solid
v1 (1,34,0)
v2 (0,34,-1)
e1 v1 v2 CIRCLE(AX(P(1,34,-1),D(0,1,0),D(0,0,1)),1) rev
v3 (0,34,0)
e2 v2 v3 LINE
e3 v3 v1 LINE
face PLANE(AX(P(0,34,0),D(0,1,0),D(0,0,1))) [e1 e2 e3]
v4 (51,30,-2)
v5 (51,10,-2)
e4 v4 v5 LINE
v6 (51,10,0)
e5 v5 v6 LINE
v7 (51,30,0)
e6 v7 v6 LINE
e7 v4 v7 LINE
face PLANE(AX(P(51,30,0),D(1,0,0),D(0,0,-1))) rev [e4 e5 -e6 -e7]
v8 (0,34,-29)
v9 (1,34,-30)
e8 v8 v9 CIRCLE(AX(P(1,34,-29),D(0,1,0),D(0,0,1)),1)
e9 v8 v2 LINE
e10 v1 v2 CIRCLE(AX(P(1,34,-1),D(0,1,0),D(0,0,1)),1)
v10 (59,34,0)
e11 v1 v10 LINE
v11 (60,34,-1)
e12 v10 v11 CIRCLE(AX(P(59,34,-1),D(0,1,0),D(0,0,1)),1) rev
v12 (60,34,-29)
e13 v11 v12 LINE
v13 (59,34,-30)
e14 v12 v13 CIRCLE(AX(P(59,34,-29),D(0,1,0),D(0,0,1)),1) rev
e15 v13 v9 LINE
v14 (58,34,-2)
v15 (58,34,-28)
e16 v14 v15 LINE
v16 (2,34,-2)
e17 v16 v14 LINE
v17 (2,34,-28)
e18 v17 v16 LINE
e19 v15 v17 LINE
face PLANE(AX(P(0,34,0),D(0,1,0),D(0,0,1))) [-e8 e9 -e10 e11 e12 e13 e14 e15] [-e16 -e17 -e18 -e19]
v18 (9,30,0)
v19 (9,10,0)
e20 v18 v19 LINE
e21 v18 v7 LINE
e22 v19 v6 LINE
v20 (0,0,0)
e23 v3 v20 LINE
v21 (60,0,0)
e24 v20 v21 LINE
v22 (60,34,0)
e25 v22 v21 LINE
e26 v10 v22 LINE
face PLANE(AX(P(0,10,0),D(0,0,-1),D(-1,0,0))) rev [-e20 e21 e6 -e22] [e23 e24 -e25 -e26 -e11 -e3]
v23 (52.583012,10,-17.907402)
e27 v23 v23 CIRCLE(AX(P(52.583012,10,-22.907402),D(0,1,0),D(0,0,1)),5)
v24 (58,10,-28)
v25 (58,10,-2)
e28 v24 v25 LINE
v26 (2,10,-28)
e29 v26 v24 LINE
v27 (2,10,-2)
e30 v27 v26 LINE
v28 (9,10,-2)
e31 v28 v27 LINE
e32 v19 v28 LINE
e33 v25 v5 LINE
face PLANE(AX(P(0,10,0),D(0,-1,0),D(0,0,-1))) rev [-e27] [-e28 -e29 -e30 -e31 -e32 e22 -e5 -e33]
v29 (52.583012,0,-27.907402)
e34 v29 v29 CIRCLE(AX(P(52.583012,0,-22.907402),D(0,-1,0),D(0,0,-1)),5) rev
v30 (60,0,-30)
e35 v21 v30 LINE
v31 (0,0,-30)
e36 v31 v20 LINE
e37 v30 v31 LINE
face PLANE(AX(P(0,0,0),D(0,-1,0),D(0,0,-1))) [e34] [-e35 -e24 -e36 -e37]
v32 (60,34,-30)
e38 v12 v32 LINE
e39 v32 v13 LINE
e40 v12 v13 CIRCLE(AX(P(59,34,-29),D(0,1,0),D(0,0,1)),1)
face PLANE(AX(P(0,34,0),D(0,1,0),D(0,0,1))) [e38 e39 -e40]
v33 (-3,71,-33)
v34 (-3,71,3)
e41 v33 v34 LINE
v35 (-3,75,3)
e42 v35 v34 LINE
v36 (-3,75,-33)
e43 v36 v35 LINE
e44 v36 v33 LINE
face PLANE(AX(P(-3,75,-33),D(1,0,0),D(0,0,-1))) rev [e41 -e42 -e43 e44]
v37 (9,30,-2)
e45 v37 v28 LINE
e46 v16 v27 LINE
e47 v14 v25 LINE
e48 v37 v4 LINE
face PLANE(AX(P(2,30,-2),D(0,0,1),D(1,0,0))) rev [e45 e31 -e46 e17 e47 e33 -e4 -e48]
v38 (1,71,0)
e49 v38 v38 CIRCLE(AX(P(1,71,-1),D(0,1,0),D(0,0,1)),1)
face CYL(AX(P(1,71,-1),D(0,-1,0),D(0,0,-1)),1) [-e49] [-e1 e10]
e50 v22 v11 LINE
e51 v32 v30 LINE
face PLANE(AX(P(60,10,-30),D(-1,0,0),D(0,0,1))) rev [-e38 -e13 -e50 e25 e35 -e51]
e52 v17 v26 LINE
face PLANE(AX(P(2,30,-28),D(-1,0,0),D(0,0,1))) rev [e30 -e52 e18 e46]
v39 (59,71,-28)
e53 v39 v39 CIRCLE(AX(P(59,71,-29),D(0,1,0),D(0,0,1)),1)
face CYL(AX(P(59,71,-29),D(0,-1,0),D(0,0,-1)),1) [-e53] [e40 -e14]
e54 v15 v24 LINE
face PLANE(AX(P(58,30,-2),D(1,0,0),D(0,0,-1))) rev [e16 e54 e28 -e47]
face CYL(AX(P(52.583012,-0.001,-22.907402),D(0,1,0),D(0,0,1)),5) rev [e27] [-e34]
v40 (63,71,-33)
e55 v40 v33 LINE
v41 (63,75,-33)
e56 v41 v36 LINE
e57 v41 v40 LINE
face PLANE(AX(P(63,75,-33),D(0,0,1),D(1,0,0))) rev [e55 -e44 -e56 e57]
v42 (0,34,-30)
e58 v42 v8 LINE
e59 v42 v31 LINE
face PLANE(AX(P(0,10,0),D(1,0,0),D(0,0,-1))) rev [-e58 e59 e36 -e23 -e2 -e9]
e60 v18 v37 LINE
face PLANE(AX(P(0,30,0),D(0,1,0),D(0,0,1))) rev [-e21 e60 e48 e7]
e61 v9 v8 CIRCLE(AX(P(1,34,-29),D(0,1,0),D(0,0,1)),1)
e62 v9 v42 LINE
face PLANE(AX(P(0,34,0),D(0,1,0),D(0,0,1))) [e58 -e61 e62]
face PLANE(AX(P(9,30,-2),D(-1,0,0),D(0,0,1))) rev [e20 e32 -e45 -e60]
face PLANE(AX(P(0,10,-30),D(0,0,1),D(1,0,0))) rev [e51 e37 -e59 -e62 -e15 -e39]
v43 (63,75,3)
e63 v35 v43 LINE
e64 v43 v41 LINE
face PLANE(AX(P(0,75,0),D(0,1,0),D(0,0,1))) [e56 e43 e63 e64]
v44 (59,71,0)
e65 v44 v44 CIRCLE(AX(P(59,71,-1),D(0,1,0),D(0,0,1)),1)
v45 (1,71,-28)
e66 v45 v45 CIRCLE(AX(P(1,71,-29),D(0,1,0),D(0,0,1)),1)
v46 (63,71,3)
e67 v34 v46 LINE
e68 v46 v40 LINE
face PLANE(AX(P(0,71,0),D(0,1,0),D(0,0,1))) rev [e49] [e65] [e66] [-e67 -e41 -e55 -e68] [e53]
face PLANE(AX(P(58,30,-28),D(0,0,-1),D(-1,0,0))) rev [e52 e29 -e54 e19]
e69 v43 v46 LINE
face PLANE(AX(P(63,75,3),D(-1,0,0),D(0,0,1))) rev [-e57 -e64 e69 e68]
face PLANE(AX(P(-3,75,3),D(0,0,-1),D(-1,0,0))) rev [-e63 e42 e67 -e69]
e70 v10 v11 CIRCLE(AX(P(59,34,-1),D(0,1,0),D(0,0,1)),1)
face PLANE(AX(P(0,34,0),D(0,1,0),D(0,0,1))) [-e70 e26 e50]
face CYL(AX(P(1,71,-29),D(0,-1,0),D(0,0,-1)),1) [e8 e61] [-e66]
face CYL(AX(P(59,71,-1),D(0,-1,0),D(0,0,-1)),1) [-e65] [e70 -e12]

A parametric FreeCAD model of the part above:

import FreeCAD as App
import Part
import Sketcher
from FreeCAD import Vector

doc = App.newDocument("Part")
body = doc.addObject("PartDesign::Body", "Body")

# Sketch on XZ plane
sketch1 = body.newObject("Sketcher::SketchObject", "Sketch")
sketch1.AttachmentSupport = (doc.getObject("XZ_Plane"), [""])
sketch1.MapMode = "FlatFace"
sketch1.addGeometry([
    Part.LineSegment(Vector(0, -30, 0), Vector(0, 0, 0)),
    Part.LineSegment(Vector(0, 0, 0), Vector(60, 0, 0)),
    Part.LineSegment(Vector(60, 0, 0), Vector(60, -30, 0)),
    Part.LineSegment(Vector(60, -30, 0), Vector(0, -30, 0)),
], False)
sketch1.addConstraint([
    Sketcher.Constraint("Coincident", 0, 2, 1, 1),
    Sketcher.Constraint("Coincident", 1, 2, 2, 1),
    Sketcher.Constraint("Coincident", 2, 2, 3, 1),
    Sketcher.Constraint("Coincident", 3, 2, 0, 1),
    Sketcher.Constraint("Vertical", 0),
    Sketcher.Constraint("Horizontal", 1),
    Sketcher.Constraint("Vertical", 2),
    Sketcher.Constraint("Horizontal", 3),
    Sketcher.Constraint("Coincident", 0, 2, -1, 1),
    Sketcher.Constraint("DistanceX", 1, 1, 1, 2, 60.0),
    Sketcher.Constraint("DistanceY", 0, 1, 0, 2, 30.0),
])
pad1 = body.newObject("PartDesign::Pad", "Pad")
pad1.Profile = sketch1
pad1.Length = 10
pad1.Reversed = True

# Sketch on XZ plane
sketch2 = body.newObject("Sketcher::SketchObject", "Sketch001")
sketch2.AttachmentSupport = (doc.getObject("XZ_Plane"), [""])
sketch2.MapMode = "FlatFace"
sketch2.AttachmentOffset = App.Placement(Vector(0, 0, -10), App.Rotation())
sketch2.addGeometry([
    Part.LineSegment(Vector(51, 0, 0), Vector(60, 0, 0)),  # 0
    Part.LineSegment(Vector(60, 0, 0), Vector(60, -30, 0)),  # 1
    Part.LineSegment(Vector(60, -30, 0), Vector(0, -30, 0)),  # 2
    Part.LineSegment(Vector(0, -30, 0), Vector(0, 0, 0)),  # 3
    Part.LineSegment(Vector(0, 0, 0), Vector(9, 0, 0)),  # 4
    Part.LineSegment(Vector(9, 0, 0), Vector(9, -2, 0)),  # 5
    Part.LineSegment(Vector(9, -2, 0), Vector(2, -2, 0)),  # 6
    Part.LineSegment(Vector(2, -2, 0), Vector(2, -28, 0)),  # 7
    Part.LineSegment(Vector(2, -28, 0), Vector(58, -28, 0)),  # 8
    Part.LineSegment(Vector(58, -28, 0), Vector(58, -2, 0)),  # 9
    Part.LineSegment(Vector(58, -2, 0), Vector(51, -2, 0)),  # 10
    Part.LineSegment(Vector(51, -2, 0), Vector(51, 0, 0)),  # 11
], False)
sketch2.addConstraint([
    Sketcher.Constraint("Coincident", 0, 2, 1, 1),
    Sketcher.Constraint("Coincident", 1, 2, 2, 1),
    Sketcher.Constraint("Coincident", 2, 2, 3, 1),
    Sketcher.Constraint("Coincident", 3, 2, 4, 1),
    Sketcher.Constraint("Coincident", 4, 2, 5, 1),
    Sketcher.Constraint("Coincident", 5, 2, 6, 1),
    Sketcher.Constraint("Coincident", 6, 2, 7, 1),
    Sketcher.Constraint("Coincident", 7, 2, 8, 1),
    Sketcher.Constraint("Coincident", 8, 2, 9, 1),
    Sketcher.Constraint("Coincident", 9, 2, 10, 1),
    Sketcher.Constraint("Coincident", 10, 2, 11, 1),
    Sketcher.Constraint("Coincident", 11, 2, 0, 1),
    Sketcher.Constraint("Horizontal", 0),
    Sketcher.Constraint("Vertical", 1),
    Sketcher.Constraint("Horizontal", 2),
    Sketcher.Constraint("Vertical", 3),
    Sketcher.Constraint("Horizontal", 4),
    Sketcher.Constraint("Vertical", 5),
    Sketcher.Constraint("Horizontal", 6),
    Sketcher.Constraint("Vertical", 7),
    Sketcher.Constraint("Horizontal", 8),
    Sketcher.Constraint("Vertical", 9),
    Sketcher.Constraint("Horizontal", 10),
    Sketcher.Constraint("Vertical", 11),
    Sketcher.Constraint("Coincident", 3, 2, -1, 1),
    Sketcher.Constraint("PointOnObject", 0, 2, -1),
    Sketcher.Constraint("Horizontal", 6, 2, 9, 2),
    Sketcher.Constraint("Equal", 0, 4),
    Sketcher.Constraint("Equal", 6, 10),
    Sketcher.Constraint("DistanceX", 0, 1, 0, 2, 9.0),
    Sketcher.Constraint("DistanceX", 2, 2, 2, 1, 60.0),
    Sketcher.Constraint("DistanceX", 6, 2, 6, 1, 7.0),
    Sketcher.Constraint("DistanceY", 1, 2, 1, 1, 30.0),
    Sketcher.Constraint("DistanceY", 5, 2, 5, 1, 2.0),
    Sketcher.Constraint("DistanceY", 7, 2, 7, 1, 26.0),
])
pad2 = body.newObject("PartDesign::Pad", "Pad001")
pad2.Profile = sketch2
pad2.Length = 20
pad2.Reversed = True

# Sketch on XZ plane
sketch3 = body.newObject("Sketcher::SketchObject", "Sketch002")
sketch3.AttachmentSupport = (doc.getObject("XZ_Plane"), [""])
sketch3.MapMode = "FlatFace"
sketch3.AttachmentOffset = App.Placement(Vector(0, 0, -30), App.Rotation())
sketch3.addGeometry([
    Part.LineSegment(Vector(0, -30, 0), Vector(0, 0, 0)),  # 0
    Part.LineSegment(Vector(0, 0, 0), Vector(60, 0, 0)),  # 1
    Part.LineSegment(Vector(60, 0, 0), Vector(60, -30, 0)),  # 2
    Part.LineSegment(Vector(60, -30, 0), Vector(0, -30, 0)),  # 3
    Part.LineSegment(Vector(58, -2, 0), Vector(2, -2, 0)),  # 4
    Part.LineSegment(Vector(2, -2, 0), Vector(2, -28, 0)),  # 5
    Part.LineSegment(Vector(2, -28, 0), Vector(58, -28, 0)),  # 6
    Part.LineSegment(Vector(58, -28, 0), Vector(58, -2, 0)),  # 7
], False)
sketch3.addConstraint([
    Sketcher.Constraint("Coincident", 0, 2, 1, 1),
    Sketcher.Constraint("Coincident", 1, 2, 2, 1),
    Sketcher.Constraint("Coincident", 2, 2, 3, 1),
    Sketcher.Constraint("Coincident", 3, 2, 0, 1),
    Sketcher.Constraint("Coincident", 4, 2, 5, 1),
    Sketcher.Constraint("Coincident", 5, 2, 6, 1),
    Sketcher.Constraint("Coincident", 6, 2, 7, 1),
    Sketcher.Constraint("Coincident", 7, 2, 4, 1),
    Sketcher.Constraint("Vertical", 0),
    Sketcher.Constraint("Horizontal", 1),
    Sketcher.Constraint("Vertical", 2),
    Sketcher.Constraint("Horizontal", 3),
    Sketcher.Constraint("Horizontal", 4),
    Sketcher.Constraint("Vertical", 5),
    Sketcher.Constraint("Horizontal", 6),
    Sketcher.Constraint("Vertical", 7),
    Sketcher.Constraint("Coincident", 0, 2, -1, 1),
    Sketcher.Constraint("DistanceX", 1, 1, 1, 2, 60.0),
    Sketcher.Constraint("DistanceX", 4, 2, 4, 1, 56.0),
    Sketcher.Constraint("DistanceY", 0, 1, 0, 2, 30.0),
    Sketcher.Constraint("DistanceY", 5, 2, 5, 1, 26.0),
    Sketcher.Constraint("DistanceX", -1, 1, 4, 2, 2.0),
    Sketcher.Constraint("DistanceY", 4, 2, -1, 1, 2.0),
])
pad3 = body.newObject("PartDesign::Pad", "Pad002")
pad3.Profile = sketch3
pad3.Length = 4
pad3.Reversed = True

# Sketch on XZ plane
sketch4 = body.newObject("Sketcher::SketchObject", "Sketch003")
sketch4.AttachmentSupport = (doc.getObject("XZ_Plane"), [""])
sketch4.MapMode = "FlatFace"
sketch4.AttachmentOffset = App.Placement(Vector(0, 0, -34), App.Rotation())
sketch4.addGeometry([
    Part.Circle(Vector(1, -29, 0), Vector(0, 0, 1), 1),
    Part.Circle(Vector(1, -1, 0), Vector(0, 0, 1), 1),
    Part.Circle(Vector(59, -29, 0), Vector(0, 0, 1), 1),
    Part.Circle(Vector(59, -1, 0), Vector(0, 0, 1), 1),
], False)
sketch4.addConstraint([
    Sketcher.Constraint("Equal", 0, 1),
    Sketcher.Constraint("Equal", 1, 2),
    Sketcher.Constraint("Equal", 2, 3),
    Sketcher.Constraint("Horizontal", 0, 3, 2, 3),
    Sketcher.Constraint("Horizontal", 1, 3, 3, 3),
    Sketcher.Constraint("Vertical", 0, 3, 1, 3),
    Sketcher.Constraint("Vertical", 2, 3, 3, 3),
    Sketcher.Constraint("Diameter", 0, 2.0),
    Sketcher.Constraint("DistanceX", -1, 1, 0, 3, 1.0),
    Sketcher.Constraint("DistanceY", 0, 3, -1, 1, 29.0),
    Sketcher.Constraint("DistanceY", 1, 3, -1, 1, 1.0),
    Sketcher.Constraint("DistanceX", -1, 1, 2, 3, 59.0),
])
pad4 = body.newObject("PartDesign::Pad", "Pad003")
pad4.Profile = sketch4
pad4.Length = 37
pad4.Reversed = True

# Sketch on XZ plane
sketch5 = body.newObject("Sketcher::SketchObject", "Sketch004")
sketch5.AttachmentSupport = (doc.getObject("XZ_Plane"), [""])
sketch5.MapMode = "FlatFace"
sketch5.AttachmentOffset = App.Placement(Vector(0, 0, -71), App.Rotation())
sketch5.addGeometry([
    Part.LineSegment(Vector(-3, -33, 0), Vector(-3, 3, 0)),
    Part.LineSegment(Vector(-3, 3, 0), Vector(63, 3, 0)),
    Part.LineSegment(Vector(63, 3, 0), Vector(63, -33, 0)),
    Part.LineSegment(Vector(63, -33, 0), Vector(-3, -33, 0)),
], False)
sketch5.addConstraint([
    Sketcher.Constraint("Coincident", 0, 2, 1, 1),
    Sketcher.Constraint("Coincident", 1, 2, 2, 1),
    Sketcher.Constraint("Coincident", 2, 2, 3, 1),
    Sketcher.Constraint("Coincident", 3, 2, 0, 1),
    Sketcher.Constraint("Vertical", 0),
    Sketcher.Constraint("Horizontal", 1),
    Sketcher.Constraint("Vertical", 2),
    Sketcher.Constraint("Horizontal", 3),
    Sketcher.Constraint("DistanceX", 1, 1, 1, 2, 66.0),
    Sketcher.Constraint("DistanceY", 0, 1, 0, 2, 36.0),
    Sketcher.Constraint("DistanceX", 0, 2, -1, 1, 3.0),
    Sketcher.Constraint("DistanceY", -1, 1, 0, 2, 3.0),
])
pad5 = body.newObject("PartDesign::Pad", "Pad004")
pad5.Profile = sketch5
pad5.Length = 4
pad5.Reversed = True

# Sketch on XZ plane
sketch6 = body.newObject("Sketcher::SketchObject", "Sketch005")
sketch6.AttachmentSupport = (doc.getObject("XZ_Plane"), [""])
sketch6.MapMode = "FlatFace"
sketch6.AttachmentOffset = App.Placement(Vector(0, 0, -10), App.Rotation())
sketch6.addGeometry(Part.Circle(Vector(53, -23, 0), Vector(0, 0, 1), 5), False)
sketch6.addConstraint([
    Sketcher.Constraint("Diameter", 0, 10.0),
    Sketcher.Constraint("DistanceY", 0, 3, -1, 1, 22.907402),
    Sketcher.Constraint("DistanceX", -1, 1, 0, 3, 52.583012),
])
pocket1 = body.newObject("PartDesign::Pocket", "Pocket")
pocket1.Profile = sketch6
pocket1.Type = "UpToFirst"
pocket1.Reversed = True

doc.recompute()
